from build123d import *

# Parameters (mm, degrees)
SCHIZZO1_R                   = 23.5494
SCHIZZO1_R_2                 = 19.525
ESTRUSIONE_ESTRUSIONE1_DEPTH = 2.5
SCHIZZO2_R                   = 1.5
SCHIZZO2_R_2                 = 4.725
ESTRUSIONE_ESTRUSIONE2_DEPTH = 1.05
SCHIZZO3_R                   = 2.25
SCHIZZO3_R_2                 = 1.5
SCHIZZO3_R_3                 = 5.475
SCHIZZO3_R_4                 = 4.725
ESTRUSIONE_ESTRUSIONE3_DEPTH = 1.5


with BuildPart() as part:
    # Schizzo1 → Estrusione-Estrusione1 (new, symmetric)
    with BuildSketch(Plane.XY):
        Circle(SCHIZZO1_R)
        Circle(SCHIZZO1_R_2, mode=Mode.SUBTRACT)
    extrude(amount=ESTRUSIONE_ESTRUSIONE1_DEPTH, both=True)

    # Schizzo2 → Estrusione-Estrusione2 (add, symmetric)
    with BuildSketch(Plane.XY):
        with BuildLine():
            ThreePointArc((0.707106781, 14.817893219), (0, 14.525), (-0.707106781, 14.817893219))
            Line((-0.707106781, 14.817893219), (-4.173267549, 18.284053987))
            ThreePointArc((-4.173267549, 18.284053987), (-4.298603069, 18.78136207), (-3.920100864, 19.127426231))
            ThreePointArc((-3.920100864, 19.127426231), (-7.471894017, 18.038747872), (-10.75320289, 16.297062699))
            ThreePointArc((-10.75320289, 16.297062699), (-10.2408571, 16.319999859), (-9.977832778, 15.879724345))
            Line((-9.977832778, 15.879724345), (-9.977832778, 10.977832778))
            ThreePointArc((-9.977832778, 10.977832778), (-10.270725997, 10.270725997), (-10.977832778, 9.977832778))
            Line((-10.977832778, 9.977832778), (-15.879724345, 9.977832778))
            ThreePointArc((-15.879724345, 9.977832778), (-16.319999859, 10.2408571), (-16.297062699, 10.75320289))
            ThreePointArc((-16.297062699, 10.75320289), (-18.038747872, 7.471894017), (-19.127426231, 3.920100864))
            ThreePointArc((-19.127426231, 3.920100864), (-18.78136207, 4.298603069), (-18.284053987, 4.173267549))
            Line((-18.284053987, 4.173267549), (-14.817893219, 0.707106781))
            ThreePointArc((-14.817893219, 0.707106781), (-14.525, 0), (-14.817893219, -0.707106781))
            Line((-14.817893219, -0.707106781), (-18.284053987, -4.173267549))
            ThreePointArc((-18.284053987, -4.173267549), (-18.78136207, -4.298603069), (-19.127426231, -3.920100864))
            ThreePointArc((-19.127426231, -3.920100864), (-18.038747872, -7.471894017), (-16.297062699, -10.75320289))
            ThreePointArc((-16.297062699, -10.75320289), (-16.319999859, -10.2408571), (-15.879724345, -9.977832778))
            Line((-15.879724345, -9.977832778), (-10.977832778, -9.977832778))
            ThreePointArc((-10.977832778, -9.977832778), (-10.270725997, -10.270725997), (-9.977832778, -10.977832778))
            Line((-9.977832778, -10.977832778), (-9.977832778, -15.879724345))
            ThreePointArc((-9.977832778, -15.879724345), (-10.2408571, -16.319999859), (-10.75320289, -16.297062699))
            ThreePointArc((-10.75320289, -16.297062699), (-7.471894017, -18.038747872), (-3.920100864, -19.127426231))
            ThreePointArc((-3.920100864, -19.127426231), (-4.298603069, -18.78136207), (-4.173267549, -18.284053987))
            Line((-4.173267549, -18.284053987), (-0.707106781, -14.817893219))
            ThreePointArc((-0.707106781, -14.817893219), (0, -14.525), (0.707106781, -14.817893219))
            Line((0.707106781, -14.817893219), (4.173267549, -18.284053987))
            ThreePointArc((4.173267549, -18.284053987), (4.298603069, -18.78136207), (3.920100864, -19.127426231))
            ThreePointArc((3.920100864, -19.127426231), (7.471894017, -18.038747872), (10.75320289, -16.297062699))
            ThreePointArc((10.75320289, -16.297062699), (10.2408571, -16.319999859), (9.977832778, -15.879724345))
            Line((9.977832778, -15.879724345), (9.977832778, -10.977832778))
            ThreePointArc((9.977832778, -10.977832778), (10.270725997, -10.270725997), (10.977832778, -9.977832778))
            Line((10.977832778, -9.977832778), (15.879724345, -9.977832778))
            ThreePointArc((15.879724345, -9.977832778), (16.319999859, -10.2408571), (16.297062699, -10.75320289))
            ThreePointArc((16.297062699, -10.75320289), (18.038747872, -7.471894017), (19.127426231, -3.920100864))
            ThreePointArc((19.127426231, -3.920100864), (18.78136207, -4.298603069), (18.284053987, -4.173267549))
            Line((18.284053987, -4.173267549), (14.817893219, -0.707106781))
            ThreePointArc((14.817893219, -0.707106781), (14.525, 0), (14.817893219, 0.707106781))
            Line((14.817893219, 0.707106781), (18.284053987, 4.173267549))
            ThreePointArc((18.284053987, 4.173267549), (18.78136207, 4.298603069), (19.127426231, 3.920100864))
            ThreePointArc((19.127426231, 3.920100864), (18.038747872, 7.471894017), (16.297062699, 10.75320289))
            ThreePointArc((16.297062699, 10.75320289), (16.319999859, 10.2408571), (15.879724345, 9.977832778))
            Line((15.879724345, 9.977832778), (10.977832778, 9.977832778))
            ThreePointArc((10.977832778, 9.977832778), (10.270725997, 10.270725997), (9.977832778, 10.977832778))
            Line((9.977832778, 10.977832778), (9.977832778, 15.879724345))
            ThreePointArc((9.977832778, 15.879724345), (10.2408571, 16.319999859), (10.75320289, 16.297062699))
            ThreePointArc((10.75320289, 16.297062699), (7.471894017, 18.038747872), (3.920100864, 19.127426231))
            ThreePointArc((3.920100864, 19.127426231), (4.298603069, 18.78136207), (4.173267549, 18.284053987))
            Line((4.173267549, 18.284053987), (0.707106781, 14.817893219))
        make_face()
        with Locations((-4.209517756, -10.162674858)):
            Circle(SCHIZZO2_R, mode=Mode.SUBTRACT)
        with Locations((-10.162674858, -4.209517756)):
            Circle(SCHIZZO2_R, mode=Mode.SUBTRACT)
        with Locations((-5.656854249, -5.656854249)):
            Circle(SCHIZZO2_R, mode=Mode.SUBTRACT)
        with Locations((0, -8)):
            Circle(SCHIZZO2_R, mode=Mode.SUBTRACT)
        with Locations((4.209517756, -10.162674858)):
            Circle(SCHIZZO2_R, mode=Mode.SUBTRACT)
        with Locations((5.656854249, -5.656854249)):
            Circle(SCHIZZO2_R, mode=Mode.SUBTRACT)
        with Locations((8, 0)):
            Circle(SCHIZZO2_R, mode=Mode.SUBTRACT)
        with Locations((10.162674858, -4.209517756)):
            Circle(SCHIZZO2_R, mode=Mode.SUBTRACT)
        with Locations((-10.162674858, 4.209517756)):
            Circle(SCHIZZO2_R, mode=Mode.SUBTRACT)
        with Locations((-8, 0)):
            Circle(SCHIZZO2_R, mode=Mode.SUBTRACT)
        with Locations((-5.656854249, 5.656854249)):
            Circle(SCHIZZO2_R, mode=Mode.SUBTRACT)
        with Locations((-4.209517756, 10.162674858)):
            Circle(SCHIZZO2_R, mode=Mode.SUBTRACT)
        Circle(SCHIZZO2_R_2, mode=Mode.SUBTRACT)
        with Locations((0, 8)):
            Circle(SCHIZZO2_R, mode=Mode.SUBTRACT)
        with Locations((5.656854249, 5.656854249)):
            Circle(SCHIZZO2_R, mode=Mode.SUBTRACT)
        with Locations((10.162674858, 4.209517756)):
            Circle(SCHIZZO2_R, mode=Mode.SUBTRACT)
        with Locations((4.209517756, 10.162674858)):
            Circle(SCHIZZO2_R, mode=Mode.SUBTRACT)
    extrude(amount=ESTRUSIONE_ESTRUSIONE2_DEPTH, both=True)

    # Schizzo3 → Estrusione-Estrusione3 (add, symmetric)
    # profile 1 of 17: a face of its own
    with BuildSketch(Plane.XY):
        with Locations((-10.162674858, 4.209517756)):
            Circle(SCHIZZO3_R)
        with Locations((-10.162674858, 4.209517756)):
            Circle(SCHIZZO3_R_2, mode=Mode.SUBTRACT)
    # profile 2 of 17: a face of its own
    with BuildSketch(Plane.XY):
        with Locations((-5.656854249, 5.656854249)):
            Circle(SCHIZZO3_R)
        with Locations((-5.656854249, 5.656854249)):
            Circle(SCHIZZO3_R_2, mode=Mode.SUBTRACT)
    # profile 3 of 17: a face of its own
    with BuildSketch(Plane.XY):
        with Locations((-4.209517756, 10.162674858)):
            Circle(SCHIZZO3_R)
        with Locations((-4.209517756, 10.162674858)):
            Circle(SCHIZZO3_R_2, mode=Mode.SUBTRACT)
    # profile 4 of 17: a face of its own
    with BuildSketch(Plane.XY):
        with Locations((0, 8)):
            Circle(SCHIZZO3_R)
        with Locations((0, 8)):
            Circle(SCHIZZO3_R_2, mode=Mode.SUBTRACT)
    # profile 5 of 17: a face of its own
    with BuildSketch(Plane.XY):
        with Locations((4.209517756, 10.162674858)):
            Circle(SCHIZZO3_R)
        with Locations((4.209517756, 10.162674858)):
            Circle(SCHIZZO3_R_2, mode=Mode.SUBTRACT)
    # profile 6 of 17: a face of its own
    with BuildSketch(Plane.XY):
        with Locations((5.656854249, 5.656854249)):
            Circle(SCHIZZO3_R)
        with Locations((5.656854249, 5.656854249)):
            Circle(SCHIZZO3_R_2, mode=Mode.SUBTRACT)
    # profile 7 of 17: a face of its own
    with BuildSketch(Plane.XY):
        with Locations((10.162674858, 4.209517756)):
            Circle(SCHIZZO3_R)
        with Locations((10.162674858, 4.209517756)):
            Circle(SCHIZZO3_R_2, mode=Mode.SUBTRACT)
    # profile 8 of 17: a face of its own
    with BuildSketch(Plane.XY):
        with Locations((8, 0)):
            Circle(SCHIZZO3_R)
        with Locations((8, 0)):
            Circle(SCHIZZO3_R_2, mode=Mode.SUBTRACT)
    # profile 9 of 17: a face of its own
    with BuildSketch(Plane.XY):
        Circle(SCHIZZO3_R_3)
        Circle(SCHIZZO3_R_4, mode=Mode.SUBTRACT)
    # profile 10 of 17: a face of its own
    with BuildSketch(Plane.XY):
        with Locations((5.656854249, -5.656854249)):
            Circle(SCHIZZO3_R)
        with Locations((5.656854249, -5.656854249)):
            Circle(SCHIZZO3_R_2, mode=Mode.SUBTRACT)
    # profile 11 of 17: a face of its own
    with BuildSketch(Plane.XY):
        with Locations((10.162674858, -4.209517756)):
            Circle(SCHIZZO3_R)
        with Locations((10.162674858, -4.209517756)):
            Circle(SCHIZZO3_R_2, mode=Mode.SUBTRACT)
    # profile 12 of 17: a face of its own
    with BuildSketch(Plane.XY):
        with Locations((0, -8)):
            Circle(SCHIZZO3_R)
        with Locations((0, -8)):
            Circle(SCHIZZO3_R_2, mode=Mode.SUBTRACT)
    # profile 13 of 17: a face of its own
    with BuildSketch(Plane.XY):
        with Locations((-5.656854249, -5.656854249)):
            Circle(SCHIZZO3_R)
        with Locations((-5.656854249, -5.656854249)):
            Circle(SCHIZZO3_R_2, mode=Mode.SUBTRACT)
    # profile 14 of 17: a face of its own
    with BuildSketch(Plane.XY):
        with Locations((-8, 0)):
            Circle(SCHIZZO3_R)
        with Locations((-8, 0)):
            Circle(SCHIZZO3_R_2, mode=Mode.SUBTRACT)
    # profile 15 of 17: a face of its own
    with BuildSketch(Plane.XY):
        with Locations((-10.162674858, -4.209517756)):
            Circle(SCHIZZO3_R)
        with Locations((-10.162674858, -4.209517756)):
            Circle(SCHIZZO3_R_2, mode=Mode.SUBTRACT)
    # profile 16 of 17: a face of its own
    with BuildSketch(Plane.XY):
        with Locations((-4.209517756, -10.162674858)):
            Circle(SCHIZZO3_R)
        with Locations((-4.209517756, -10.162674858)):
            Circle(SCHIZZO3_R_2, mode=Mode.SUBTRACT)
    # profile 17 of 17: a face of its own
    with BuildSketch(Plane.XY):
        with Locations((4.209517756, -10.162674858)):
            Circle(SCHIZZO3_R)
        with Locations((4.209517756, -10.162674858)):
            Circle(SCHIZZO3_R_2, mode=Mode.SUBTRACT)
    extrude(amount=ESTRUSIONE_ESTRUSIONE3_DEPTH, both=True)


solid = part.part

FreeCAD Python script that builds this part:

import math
import FreeCAD as App
import Part
import Sketcher

doc = App.newDocument("Part")
body = doc.addObject("PartDesign::Body", "Body")

# Sketch on XY plane
sketch1 = doc.addObject("Sketcher::SketchObject", "Sketch")
body.addObject(sketch1)
sketch1.AttachmentSupport = (doc.XY_Plane, [""])
sketch1.MapMode = "FlatFace"
sketch1.addGeometry(Part.Circle(App.Vector(0, 0, 0), App.Vector(0, 0, 1), 24), False)
sketch1.addGeometry(Part.Circle(App.Vector(0, 0, 0), App.Vector(0, 0, 1), 20), False)
sketch1.addConstraint(Sketcher.Constraint("Coincident", 0, 3, -1, 1))
sketch1.addConstraint(Sketcher.Constraint("Coincident", 1, 3, -1, 1))
sketch1.addConstraint(Sketcher.Constraint("Diameter", 1, 39.05))
sketch1.addConstraint(Sketcher.Constraint("Diameter", 0, 47.0988))
pad1 = doc.addObject("PartDesign::Pad", "Pad")
body.addObject(pad1)
pad1.Profile = sketch1
pad1.Length = 5
pad1.Midplane = True

# Sketch on XY plane
sketch2 = doc.addObject("Sketcher::SketchObject", "Sketch001")
body.addObject(sketch2)
sketch2.AttachmentSupport = (doc.XY_Plane, [""])
sketch2.MapMode = "FlatFace"
sketch2.addGeometry(Part.ArcOfCircle(Part.Circle(App.Vector(0, 15.5, 0), App.Vector(0, 0, 1), 1), math.radians(-135), math.radians(-45)), False)
sketch2.addGeometry(Part.LineSegment(App.Vector(-0.7, 14.8, 0), App.Vector(-4.2, 18.3, 0)), False)
sketch2.addGeometry(Part.ArcOfCircle(Part.Circle(App.Vector(-3.8, 18.6, 0), App.Vector(0, 0, 1), 0.5), math.radians(102), math.radians(225)), False)
sketch2.addGeometry(Part.ArcOfCircle(Part.Circle(App.Vector(0, 0, 0), App.Vector(0, 0, 1), 19.5), math.radians(102), math.radians(123)), False)
sketch2.addGeometry(Part.ArcOfCircle(Part.Circle(App.Vector(-10.5, 15.9, 0), App.Vector(0, 0, 1), 0.5), math.radians(0), math.radians(123)), False)
sketch2.addGeometry(Part.LineSegment(App.Vector(-10, 15.9, 0), App.Vector(-10, 11, 0)), False)
sketch2.addGeometry(Part.ArcOfCircle(Part.Circle(App.Vector(-11, 11, 0), App.Vector(0, 0, 1), 1), math.radians(-90), math.radians(0)), False)
sketch2.addGeometry(Part.LineSegment(App.Vector(-11, 10, 0), App.Vector(-15.9, 10, 0)), False)
sketch2.addGeometry(Part.ArcOfCircle(Part.Circle(App.Vector(-15.9, 10.5, 0), App.Vector(0, 0, 1), 0.5), math.radians(147), math.radians(270)), False)
sketch2.addGeometry(Part.ArcOfCircle(Part.Circle(App.Vector(0, 0, 0), App.Vector(0, 0, 1), 19.5), math.radians(147), math.radians(168)), False)
sketch2.addGeometry(Part.ArcOfCircle(Part.Circle(App.Vector(-18.6, 3.8, 0), App.Vector(0, 0, 1), 0.5), math.radians(45), math.radians(168)), False)
sketch2.addGeometry(Part.LineSegment(App.Vector(-18.3, 4.2, 0), App.Vector(-14.8, 0.7, 0)), False)
sketch2.addGeometry(Part.ArcOfCircle(Part.Circle(App.Vector(-15.5, 0, 0), App.Vector(0, 0, 1), 1), math.radians(-45), math.radians(45)), False)
sketch2.addGeometry(Part.LineSegment(App.Vector(-14.8, -0.7, 0), App.Vector(-18.3, -4.2, 0)), False)
sketch2.addGeometry(Part.ArcOfCircle(Part.Circle(App.Vector(-18.6, -3.8, 0), App.Vector(0, 0, 1), 0.5), math.radians(-168), math.radians(-45)), False)
sketch2.addGeometry(Part.ArcOfCircle(Part.Circle(App.Vector(0, 0, 0), App.Vector(0, 0, 1), 19.5), math.radians(-168), math.radians(-147)), False)
sketch2.addGeometry(Part.ArcOfCircle(Part.Circle(App.Vector(-15.9, -10.5, 0), App.Vector(0, 0, 1), 0.5), math.radians(90), math.radians(213)), False)
sketch2.addGeometry(Part.LineSegment(App.Vector(-15.9, -10, 0), App.Vector(-11, -10, 0)), False)
sketch2.addGeometry(Part.ArcOfCircle(Part.Circle(App.Vector(-11, -11, 0), App.Vector(0, 0, 1), 1), math.radians(0), math.radians(90)), False)
sketch2.addGeometry(Part.LineSegment(App.Vector(-10, -11, 0), App.Vector(-10, -15.9, 0)), False)
sketch2.addGeometry(Part.ArcOfCircle(Part.Circle(App.Vector(-10.5, -15.9, 0), App.Vector(0, 0, 1), 0.5), math.radians(-123), math.radians(0)), False)
sketch2.addGeometry(Part.ArcOfCircle(Part.Circle(App.Vector(0, 0, 0), App.Vector(0, 0, 1), 19.5), math.radians(-123), math.radians(-102)), False)
sketch2.addGeometry(Part.ArcOfCircle(Part.Circle(App.Vector(-3.8, -18.6, 0), App.Vector(0, 0, 1), 0.5), math.radians(135), math.radians(258)), False)
sketch2.addGeometry(Part.LineSegment(App.Vector(-4.2, -18.3, 0), App.Vector(-0.7, -14.8, 0)), False)
sketch2.addGeometry(Part.ArcOfCircle(Part.Circle(App.Vector(0, -15.5, 0), App.Vector(0, 0, 1), 1), math.radians(45), math.radians(135)), False)
sketch2.addGeometry(Part.LineSegment(App.Vector(0.7, -14.8, 0), App.Vector(4.2, -18.3, 0)), False)
sketch2.addGeometry(Part.ArcOfCircle(Part.Circle(App.Vector(3.8, -18.6, 0), App.Vector(0, 0, 1), 0.5), math.radians(-78), math.radians(45)), False)
sketch2.addGeometry(Part.ArcOfCircle(Part.Circle(App.Vector(0, 0, 0), App.Vector(0, 0, 1), 19.5), math.radians(-78), math.radians(-57)), False)
sketch2.addGeometry(Part.ArcOfCircle(Part.Circle(App.Vector(10.5, -15.9, 0), App.Vector(0, 0, 1), 0.5), math.radians(180), math.radians(303)), False)
sketch2.addGeometry(Part.LineSegment(App.Vector(10, -15.9, 0), App.Vector(10, -11, 0)), False)
sketch2.addGeometry(Part.ArcOfCircle(Part.Circle(App.Vector(11, -11, 0), App.Vector(0, 0, 1), 1), math.radians(90), math.radians(180)), False)
sketch2.addGeometry(Part.LineSegment(App.Vector(11, -10, 0), App.Vector(15.9, -10, 0)), False)
sketch2.addGeometry(Part.ArcOfCircle(Part.Circle(App.Vector(15.9, -10.5, 0), App.Vector(0, 0, 1), 0.5), math.radians(-33), math.radians(90)), False)
sketch2.addGeometry(Part.ArcOfCircle(Part.Circle(App.Vector(0, 0, 0), App.Vector(0, 0, 1), 19.5), math.radians(-33), math.radians(-12)), False)
sketch2.addGeometry(Part.ArcOfCircle(Part.Circle(App.Vector(18.6, -3.8, 0), App.Vector(0, 0, 1), 0.5), math.radians(-135), math.radians(-12)), False)
sketch2.addGeometry(Part.LineSegment(App.Vector(18.3, -4.2, 0), App.Vector(14.8, -0.7, 0)), False)
sketch2.addGeometry(Part.ArcOfCircle(Part.Circle(App.Vector(15.5, 0, 0), App.Vector(0, 0, 1), 1), math.radians(135), math.radians(225)), False)
sketch2.addGeometry(Part.LineSegment(App.Vector(14.8, 0.7, 0), App.Vector(18.3, 4.2, 0)), False)
sketch2.addGeometry(Part.ArcOfCircle(Part.Circle(App.Vector(18.6, 3.8, 0), App.Vector(0, 0, 1), 0.5), math.radians(12), math.radians(135)), False)
sketch2.addGeometry(Part.ArcOfCircle(Part.Circle(App.Vector(0, 0, 0), App.Vector(0, 0, 1), 19.5), math.radians(12), math.radians(33)), False)
sketch2.addGeometry(Part.ArcOfCircle(Part.Circle(App.Vector(15.9, 10.5, 0), App.Vector(0, 0, 1), 0.5), math.radians(-90), math.radians(33)), False)
sketch2.addGeometry(Part.LineSegment(App.Vector(15.9, 10, 0), App.Vector(11, 10, 0)), False)
sketch2.addGeometry(Part.ArcOfCircle(Part.Circle(App.Vector(11, 11, 0), App.Vector(0, 0, 1), 1), math.radians(-180), math.radians(-90)), False)
sketch2.addGeometry(Part.LineSegment(App.Vector(10, 11, 0), App.Vector(10, 15.9, 0)), False)
sketch2.addGeometry(Part.ArcOfCircle(Part.Circle(App.Vector(10.5, 15.9, 0), App.Vector(0, 0, 1), 0.5), math.radians(57), math.radians(180)), False)
sketch2.addGeometry(Part.ArcOfCircle(Part.Circle(App.Vector(0, 0, 0), App.Vector(0, 0, 1), 19.5), math.radians(57), math.radians(78)), False)
sketch2.addGeometry(Part.ArcOfCircle(Part.Circle(App.Vector(3.8, 18.6, 0), App.Vector(0, 0, 1), 0.5), math.radians(-45), math.radians(78)), False)
sketch2.addGeometry(Part.LineSegment(App.Vector(4.2, 18.3, 0), App.Vector(0.7, 14.8, 0)), False)
sketch2.addGeometry(Part.Circle(App.Vector(-4.2, -10.2, 0), App.Vector(0, 0, 1), 1.5), False)
sketch2.addGeometry(Part.Circle(App.Vector(-10.2, -4.2, 0), App.Vector(0, 0, 1), 1.5), False)
sketch2.addGeometry(Part.Circle(App.Vector(-5.7, -5.7, 0), App.Vector(0, 0, 1), 1.5), False)
sketch2.addGeometry(Part.Circle(App.Vector(4.2, -10.2, 0), App.Vector(0, 0, 1), 1.5), False)
sketch2.addGeometry(Part.Circle(App.Vector(0, -8, 0), App.Vector(0, 0, 1), 1.5), False)
sketch2.addGeometry(Part.Circle(App.Vector(5.7, -5.7, 0), App.Vector(0, 0, 1), 1.5), False)
sketch2.addGeometry(Part.Circle(App.Vector(10.2, -4.2, 0), App.Vector(0, 0, 1), 1.5), False)
sketch2.addGeometry(Part.Circle(App.Vector(-8, 0, 0), App.Vector(0, 0, 1), 1.5), False)
sketch2.addGeometry(Part.Circle(App.Vector(-10.2, 4.2, 0), App.Vector(0, 0, 1), 1.5), False)
sketch2.addGeometry(Part.Circle(App.Vector(-5.7, 5.7, 0), App.Vector(0, 0, 1), 1.5), False)
sketch2.addGeometry(Part.Circle(App.Vector(-4.2, 10.2, 0), App.Vector(0, 0, 1), 1.5), False)
sketch2.addGeometry(Part.Circle(App.Vector(0, 0, 0), App.Vector(0, 0, 1), 4.7), False)
sketch2.addGeometry(Part.Circle(App.Vector(5.7, 5.7, 0), App.Vector(0, 0, 1), 1.5), False)
sketch2.addGeometry(Part.Circle(App.Vector(8, 0, 0), App.Vector(0, 0, 1), 1.5), False)
sketch2.addGeometry(Part.Circle(App.Vector(10.2, 4.2, 0), App.Vector(0, 0, 1), 1.5), False)
sketch2.addGeometry(Part.Circle(App.Vector(0, 8, 0), App.Vector(0, 0, 1), 1.5), False)
sketch2.addGeometry(Part.Circle(App.Vector(4.2, 10.2, 0), App.Vector(0, 0, 1), 1.5), False)
sketch2.addConstraint(Sketcher.Constraint("Tangent", 0, 1, 1, 1))
sketch2.addConstraint(Sketcher.Constraint("Tangent", 1, 2, 2, 2))
sketch2.addConstraint(Sketcher.Constraint("Tangent", 2, 1, 3, 1))
sketch2.addConstraint(Sketcher.Constraint("Tangent", 3, 2, 4, 2))
sketch2.addConstraint(Sketcher.Constraint("Tangent", 4, 1, 5, 1))
sketch2.addConstraint(Sketcher.Constraint("Tangent", 5, 2, 6, 2))
sketch2.addConstraint(Sketcher.Constraint("Tangent", 6, 1, 7, 1))
sketch2.addConstraint(Sketcher.Constraint("Tangent", 7, 2, 8, 2))
sketch2.addConstraint(Sketcher.Constraint("Tangent", 8, 1, 9, 1))
sketch2.addConstraint(Sketcher.Constraint("Tangent", 9, 2, 10, 2))
sketch2.addConstraint(Sketcher.Constraint("Tangent", 10, 1, 11, 1))
sketch2.addConstraint(Sketcher.Constraint("Tangent", 11, 2, 12, 2))
sketch2.addConstraint(Sketcher.Constraint("Tangent", 12, 1, 13, 1))
sketch2.addConstraint(Sketcher.Constraint("Tangent", 13, 2, 14, 2))
sketch2.addConstraint(Sketcher.Constraint("Tangent", 14, 1, 15, 1))
sketch2.addConstraint(Sketcher.Constraint("Tangent", 15, 2, 16, 2))
sketch2.addConstraint(Sketcher.Constraint("Tangent", 16, 1, 17, 1))
sketch2.addConstraint(Sketcher.Constraint("Tangent", 17, 2, 18, 2))
sketch2.addConstraint(Sketcher.Constraint("Tangent", 18, 1, 19, 1))
sketch2.addConstraint(Sketcher.Constraint("Tangent", 19, 2, 20, 2))
sketch2.addConstraint(Sketcher.Constraint("Tangent", 20, 1, 21, 1))
sketch2.addConstraint(Sketcher.Constraint("Tangent", 21, 2, 22, 2))
sketch2.addConstraint(Sketcher.Constraint("Tangent", 22, 1, 23, 1))
sketch2.addConstraint(Sketcher.Constraint("Tangent", 23, 2, 24, 2))
sketch2.addConstraint(Sketcher.Constraint("Tangent", 24, 1, 25, 1))
sketch2.addConstraint(Sketcher.Constraint("Tangent", 25, 2, 26, 2))
sketch2.addConstraint(Sketcher.Constraint("Tangent", 26, 1, 27, 1))
sketch2.addConstraint(Sketcher.Constraint("Tangent", 27, 2, 28, 2))
sketch2.addConstraint(Sketcher.Constraint("Tangent", 28, 1, 29, 1))
sketch2.addConstraint(Sketcher.Constraint("Tangent", 29, 2, 30, 2))
sketch2.addConstraint(Sketcher.Constraint("Tangent", 30, 1, 31, 1))
sketch2.addConstraint(Sketcher.Constraint("Tangent", 31, 2, 32, 2))
sketch2.addConstraint(Sketcher.Constraint("Tangent", 32, 1, 33, 1))
sketch2.addConstraint(Sketcher.Constraint("Tangent", 33, 2, 34, 2))
sketch2.addConstraint(Sketcher.Constraint("Tangent", 34, 1, 35, 1))
sketch2.addConstraint(Sketcher.Constraint("Tangent", 35, 2, 36, 2))
sketch2.addConstraint(Sketcher.Constraint("Tangent", 36, 1, 37, 1))
sketch2.addConstraint(Sketcher.Constraint("Tangent", 37, 2, 38, 2))
sketch2.addConstraint(Sketcher.Constraint("Tangent", 38, 1, 39, 1))
sketch2.addConstraint(Sketcher.Constraint("Tangent", 39, 2, 40, 2))
sketch2.addConstraint(Sketcher.Constraint("Tangent", 40, 1, 41, 1))
sketch2.addConstraint(Sketcher.Constraint("Tangent", 41, 2, 42, 2))
sketch2.addConstraint(Sketcher.Constraint("Tangent", 42, 1, 43, 1))
sketch2.addConstraint(Sketcher.Constraint("Tangent", 43, 2, 44, 2))
sketch2.addConstraint(Sketcher.Constraint("Tangent", 44, 1, 45, 1))
sketch2.addConstraint(Sketcher.Constraint("Tangent", 45, 2, 46, 2))
sketch2.addConstraint(Sketcher.Constraint("Tangent", 46, 1, 47, 1))
sketch2.addConstraint(Sketcher.Constraint("Tangent", 47, 2, 0, 2))
sketch2.addConstraint(Sketcher.Constraint("Vertical", 5))
sketch2.addConstraint(Sketcher.Constraint("Horizontal", 7))
sketch2.addConstraint(Sketcher.Constraint("Horizontal", 17))
sketch2.addConstraint(Sketcher.Constraint("Vertical", 19))
sketch2.addConstraint(Sketcher.Constraint("Vertical", 29))
sketch2.addConstraint(Sketcher.Constraint("Horizontal", 31))
sketch2.addConstraint(Sketcher.Constraint("Horizontal", 41))
sketch2.addConstraint(Sketcher.Constraint("Vertical", 43))
sketch2.addConstraint(Sketcher.Constraint("Coincident", 3, 3, -1, 1))
sketch2.addConstraint(Sketcher.Constraint("Coincident", 9, 3, -1, 1))
sketch2.addConstraint(Sketcher.Constraint("Coincident", 15, 3, -1, 1))
sketch2.addConstraint(Sketcher.Constraint("Coincident", 21, 3, -1, 1))
sketch2.addConstraint(Sketcher.Constraint("Coincident", 27, 3, -1, 1))
sketch2.addConstraint(Sketcher.Constraint("Coincident", 33, 3, -1, 1))
sketch2.addConstraint(Sketcher.Constraint("Coincident", 39, 3, -1, 1))
sketch2.addConstraint(Sketcher.Constraint("Coincident", 45, 3, -1, 1))
sketch2.addConstraint(Sketcher.Constraint("Coincident", 59, 3, -1, 1))
sketch2.addConstraint(Sketcher.Constraint("Equal", 2, 4))
sketch2.addConstraint(Sketcher.Constraint("Equal", 0, 6))
sketch2.addConstraint(Sketcher.Constraint("Equal", 4, 8))
sketch2.addConstraint(Sketcher.Constraint("Equal", 3, 9))
sketch2.addConstraint(Sketcher.Constraint("Equal", 8, 10))
sketch2.addConstraint(Sketcher.Constraint("Equal", 6, 12))
sketch2.addConstraint(Sketcher.Constraint("Equal", 10, 14))
sketch2.addConstraint(Sketcher.Constraint("Equal", 9, 15))
sketch2.addConstraint(Sketcher.Constraint("Equal", 14, 16))
sketch2.addConstraint(Sketcher.Constraint("Equal", 12, 18))
sketch2.addConstraint(Sketcher.Constraint("Equal", 16, 20))
sketch2.addConstraint(Sketcher.Constraint("Equal", 15, 21))
sketch2.addConstraint(Sketcher.Constraint("Equal", 20, 22))
sketch2.addConstraint(Sketcher.Constraint("Equal", 18, 24))
sketch2.addConstraint(Sketcher.Constraint("Equal", 22, 26))
sketch2.addConstraint(Sketcher.Constraint("Equal", 21, 27))
sketch2.addConstraint(Sketcher.Constraint("Equal", 26, 28))
sketch2.addConstraint(Sketcher.Constraint("Equal", 24, 30))
sketch2.addConstraint(Sketcher.Constraint("Equal", 28, 32))
sketch2.addConstraint(Sketcher.Constraint("Equal", 27, 33))
sketch2.addConstraint(Sketcher.Constraint("Equal", 32, 34))
sketch2.addConstraint(Sketcher.Constraint("Equal", 30, 36))
sketch2.addConstraint(Sketcher.Constraint("Equal", 34, 38))
sketch2.addConstraint(Sketcher.Constraint("Equal", 33, 39))
sketch2.addConstraint(Sketcher.Constraint("Equal", 38, 40))
sketch2.addConstraint(Sketcher.Constraint("Equal", 36, 42))
sketch2.addConstraint(Sketcher.Constraint("Equal", 40, 44))
sketch2.addConstraint(Sketcher.Constraint("Equal", 39, 45))
sketch2.addConstraint(Sketcher.Constraint("Equal", 44, 46))
sketch2.addConstraint(Sketcher.Constraint("Equal", 48, 49))
sketch2.addConstraint(Sketcher.Constraint("Equal", 49, 50))
sketch2.addConstraint(Sketcher.Constraint("Equal", 50, 51))
sketch2.addConstraint(Sketcher.Constraint("Equal", 51, 52))
sketch2.addConstraint(Sketcher.Constraint("Equal", 52, 53))
sketch2.addConstraint(Sketcher.Constraint("Equal", 53, 54))
sketch2.addConstraint(Sketcher.Constraint("Equal", 54, 55))
sketch2.addConstraint(Sketcher.Constraint("Equal", 55, 56))
sketch2.addConstraint(Sketcher.Constraint("Equal", 56, 57))
sketch2.addConstraint(Sketcher.Constraint("Equal", 57, 58))
sketch2.addConstraint(Sketcher.Constraint("Equal", 58, 60))
sketch2.addConstraint(Sketcher.Constraint("Equal", 60, 61))
sketch2.addConstraint(Sketcher.Constraint("Equal", 61, 62))
sketch2.addConstraint(Sketcher.Constraint("Equal", 62, 63))
sketch2.addConstraint(Sketcher.Constraint("Equal", 63, 64))
sketch2.addConstraint(Sketcher.Constraint("Symmetric", 0, 3, 24, 3, -1, 1))
sketch2.addConstraint(Sketcher.Constraint("Symmetric", 6, 3, 30, 3, -1, 1))
sketch2.addConstraint(Sketcher.Constraint("Symmetric", 12, 3, 36, 3, -1, 1))
sketch2.addConstraint(Sketcher.Constraint("Symmetric", 18, 3, 42, 3, -1, 1))
sketch2.addConstraint(Sketcher.Constraint("Symmetric", 54, 3, 56, 3, -1, 1))
sketch2.addConstraint(Sketcher.Constraint("Symmetric", 53, 3, 57, 3, -1, 1))
sketch2.addConstraint(Sketcher.Constraint("Symmetric", 51, 3, 58, 3, -1, 1))
sketch2.addConstraint(Sketcher.Constraint("Symmetric", 50, 3, 60, 3, -1, 1))
sketch2.addConstraint(Sketcher.Constraint("Symmetric", 55, 3, 61, 3, -1, 1))
sketch2.addConstraint(Sketcher.Constraint("Symmetric", 49, 3, 62, 3, -1, 1))
sketch2.addConstraint(Sketcher.Constraint("Symmetric", 52, 3, 63, 3, -1, 1))
sketch2.addConstraint(Sketcher.Constraint("Symmetric", 48, 3, 64, 3, -1, 1))
sketch2.addConstraint(Sketcher.Constraint("Symmetric", 18, 3, 30, 3, -2))
sketch2.addConstraint(Sketcher.Constraint("Symmetric", 48, 3, 51, 3, -2))
sketch2.addConstraint(Sketcher.Constraint("Symmetric", 50, 3, 53, 3, -2))
sketch2.addConstraint(Sketcher.Constraint("Symmetric", 49, 3, 54, 3, -2))
sketch2.addConstraint(Sketcher.Constraint("Symmetric", 23, 2, 24, 1, -2))
sketch2.addConstraint(Sketcher.Constraint("Symmetric", 13, 2, 34, 1, -2))
sketch2.addConstraint(Sketcher.Constraint("PointOnObject", 52, 3, -2))
sketch2.addConstraint(Sketcher.Constraint("PointOnObject", 55, 3, -1))
sketch2.addConstraint(Sketcher.Constraint("Parallel", 1, 11))
sketch2.addConstraint(Sketcher.Constraint("Perpendicular", 11, 13))
sketch2.addConstraint(Sketcher.Constraint("Parallel", 13, 23))
sketch2.addConstraint(Sketcher.Constraint("Perpendicular", 23, 25))
sketch2.addConstraint(Sketcher.Constraint("Perpendicular", 35, 37))
sketch2.addConstraint(Sketcher.Constraint("Parallel", 37, 47))
sketch2.addConstraint(Sketcher.Constraint("Equal", 41, 5))
sketch2.addConstraint(Sketcher.Constraint("Equal", 1, 11))
sketch2.addConstraint(Sketcher.Constraint("Diameter", 48, 3.0))
sketch2.addConstraint(Sketcher.Constraint("Radius", 0, 1.0))
sketch2.addConstraint(Sketcher.Constraint("Radius", 2, 0.5))
sketch2.addConstraint(Sketcher.Constraint("Diameter", 59, 9.45))
sketch2.addConstraint(Sketcher.Constraint("DistanceY", 52, 3, -1, 1, 8.0))
sketch2.addConstraint(Sketcher.Constraint("DistanceX", 55, 3, -1, 1, 8.0))
sketch2.addConstraint(Sketcher.Constraint("Radius", 3, 19.525))
sketch2.addConstraint(Sketcher.Constraint("DistanceY", -1, 1, 0, 3, 15.525))
sketch2.addConstraint(Sketcher.Constraint("DistanceX", 7, 2, 7, 1, 4.901892))
sketch2.addConstraint(Sketcher.Constraint("DistanceX", 48, 3, -1, 1, 4.209518))
sketch2.addConstraint(Sketcher.Constraint("DistanceY", 48, 3, -1, 1, 10.162675))
sketch2.addConstraint(Sketcher.Constraint("DistanceX", 49, 3, -1, 1, 10.162675))
sketch2.addConstraint(Sketcher.Constraint("DistanceY", 49, 3, -1, 1, 4.209518))
sketch2.addConstraint(Sketcher.Constraint("DistanceX", 50, 3, -1, 1, 5.656854))
sketch2.addConstraint(Sketcher.Constraint("DistanceY", 50, 3, -1, 1, 5.656854))
pad2 = doc.addObject("PartDesign::Pad", "Pad001")
body.addObject(pad2)
pad2.Profile = sketch2
pad2.Length = 2.1
pad2.Midplane = True

# Sketch on XY plane
sketch3 = doc.addObject("Sketcher::SketchObject", "Sketch002")
body.addObject(sketch3)
sketch3.AttachmentSupport = (doc.XY_Plane, [""])
sketch3.MapMode = "FlatFace"
sketch3.addGeometry(Part.Circle(App.Vector(-10.2, 4.2, 0), App.Vector(0, 0, 1), 2.2), False)
sketch3.addGeometry(Part.Circle(App.Vector(-10.2, 4.2, 0), App.Vector(0, 0, 1), 1.5), False)
sketch3.addGeometry(Part.Circle(App.Vector(-5.7, 5.7, 0), App.Vector(0, 0, 1), 2.2), False)
sketch3.addGeometry(Part.Circle(App.Vector(-5.7, 5.7, 0), App.Vector(0, 0, 1), 1.5), False)
sketch3.addGeometry(Part.Circle(App.Vector(-4.2, 10.2, 0), App.Vector(0, 0, 1), 2.2), False)
sketch3.addGeometry(Part.Circle(App.Vector(-4.2, 10.2, 0), App.Vector(0, 0, 1), 1.5), False)
sketch3.addGeometry(Part.Circle(App.Vector(0, 8, 0), App.Vector(0, 0, 1), 2.2), False)
sketch3.addGeometry(Part.Circle(App.Vector(0, 8, 0), App.Vector(0, 0, 1), 1.5), False)
sketch3.addGeometry(Part.Circle(App.Vector(4.2, 10.2, 0), App.Vector(0, 0, 1), 2.2), False)
sketch3.addGeometry(Part.Circle(App.Vector(4.2, 10.2, 0), App.Vector(0, 0, 1), 1.5), False)
sketch3.addGeometry(Part.Circle(App.Vector(5.7, 5.7, 0), App.Vector(0, 0, 1), 2.2), False)
sketch3.addGeometry(Part.Circle(App.Vector(5.7, 5.7, 0), App.Vector(0, 0, 1), 1.5), False)
sketch3.addGeometry(Part.Circle(App.Vector(10.2, 4.2, 0), App.Vector(0, 0, 1), 2.2), False)
sketch3.addGeometry(Part.Circle(App.Vector(10.2, 4.2, 0), App.Vector(0, 0, 1), 1.5), False)
sketch3.addGeometry(Part.Circle(App.Vector(8, 0, 0), App.Vector(0, 0, 1), 2.2), False)
sketch3.addGeometry(Part.Circle(App.Vector(8, 0, 0), App.Vector(0, 0, 1), 1.5), False)
sketch3.addGeometry(Part.Circle(App.Vector(0, 0, 0), App.Vector(0, 0, 1), 5.5), False)
sketch3.addGeometry(Part.Circle(App.Vector(0, 0, 0), App.Vector(0, 0, 1), 4.7), False)
sketch3.addGeometry(Part.Circle(App.Vector(5.7, -5.7, 0), App.Vector(0, 0, 1), 2.2), False)
sketch3.addGeometry(Part.Circle(App.Vector(5.7, -5.7, 0), App.Vector(0, 0, 1), 1.5), False)
sketch3.addGeometry(Part.Circle(App.Vector(10.2, -4.2, 0), App.Vector(0, 0, 1), 2.2), False)
sketch3.addGeometry(Part.Circle(App.Vector(10.2, -4.2, 0), App.Vector(0, 0, 1), 1.5), False)
sketch3.addGeometry(Part.Circle(App.Vector(0, -8, 0), App.Vector(0, 0, 1), 2.2), False)
sketch3.addGeometry(Part.Circle(App.Vector(0, -8, 0), App.Vector(0, 0, 1), 1.5), False)
sketch3.addGeometry(Part.Circle(App.Vector(-5.7, -5.7, 0), App.Vector(0, 0, 1), 2.2), False)
sketch3.addGeometry(Part.Circle(App.Vector(-5.7, -5.7, 0), App.Vector(0, 0, 1), 1.5), False)
sketch3.addGeometry(Part.Circle(App.Vector(-8, 0, 0), App.Vector(0, 0, 1), 2.2), False)
sketch3.addGeometry(Part.Circle(App.Vector(-8, 0, 0), App.Vector(0, 0, 1), 1.5), False)
sketch3.addGeometry(Part.Circle(App.Vector(-10.2, -4.2, 0), App.Vector(0, 0, 1), 2.2), False)
sketch3.addGeometry(Part.Circle(App.Vector(-10.2, -4.2, 0), App.Vector(0, 0, 1), 1.5), False)
sketch3.addGeometry(Part.Circle(App.Vector(-4.2, -10.2, 0), App.Vector(0, 0, 1), 2.2), False)
sketch3.addGeometry(Part.Circle(App.Vector(-4.2, -10.2, 0), App.Vector(0, 0, 1), 1.5), False)
sketch3.addGeometry(Part.Circle(App.Vector(4.2, -10.2, 0), App.Vector(0, 0, 1), 2.2), False)
sketch3.addGeometry(Part.Circle(App.Vector(4.2, -10.2, 0), App.Vector(0, 0, 1), 1.5), False)
sketch3.addConstraint(Sketcher.Constraint("Coincident", 16, 3, -1, 1))
sketch3.addConstraint(Sketcher.Constraint("Coincident", 17, 3, -1, 1))
sketch3.addConstraint(Sketcher.Constraint("Coincident", 1, 3, 0, 3))
sketch3.addConstraint(Sketcher.Constraint("Coincident", 3, 3, 2, 3))
sketch3.addConstraint(Sketcher.Constraint("Coincident", 5, 3, 4, 3))
sketch3.addConstraint(Sketcher.Constraint("Coincident", 7, 3, 6, 3))
sketch3.addConstraint(Sketcher.Constraint("Coincident", 9, 3, 8, 3))
sketch3.addConstraint(Sketcher.Constraint("Coincident", 11, 3, 10, 3))
sketch3.addConstraint(Sketcher.Constraint("Coincident", 13, 3, 12, 3))
sketch3.addConstraint(Sketcher.Constraint("Coincident", 15, 3, 14, 3))
sketch3.addConstraint(Sketcher.Constraint("Coincident", 19, 3, 18, 3))
sketch3.addConstraint(Sketcher.Constraint("Coincident", 21, 3, 20, 3))
sketch3.addConstraint(Sketcher.Constraint("Coincident", 23, 3, 22, 3))
sketch3.addConstraint(Sketcher.Constraint("Coincident", 25, 3, 24, 3))
sketch3.addConstraint(Sketcher.Constraint("Coincident", 27, 3, 26, 3))
sketch3.addConstraint(Sketcher.Constraint("Coincident", 29, 3, 28, 3))
sketch3.addConstraint(Sketcher.Constraint("Coincident", 31, 3, 30, 3))
sketch3.addConstraint(Sketcher.Constraint("Coincident", 33, 3, 32, 3))
sketch3.addConstraint(Sketcher.Constraint("Equal", 0, 2))
sketch3.addConstraint(Sketcher.Constraint("Equal", 1, 3))
sketch3.addConstraint(Sketcher.Constraint("Equal", 2, 4))
sketch3.addConstraint(Sketcher.Constraint("Equal", 3, 5))
sketch3.addConstraint(Sketcher.Constraint("Equal", 4, 6))
sketch3.addConstraint(Sketcher.Constraint("Equal", 5, 7))
sketch3.addConstraint(Sketcher.Constraint("Equal", 6, 8))
sketch3.addConstraint(Sketcher.Constraint("Equal", 7, 9))
sketch3.addConstraint(Sketcher.Constraint("Equal", 8, 10))
sketch3.addConstraint(Sketcher.Constraint("Equal", 9, 11))
sketch3.addConstraint(Sketcher.Constraint("Equal", 10, 12))
sketch3.addConstraint(Sketcher.Constraint("Equal", 11, 13))
sketch3.addConstraint(Sketcher.Constraint("Equal", 12, 14))
sketch3.addConstraint(Sketcher.Constraint("Equal", 13, 15))
sketch3.addConstraint(Sketcher.Constraint("Equal", 14, 18))
sketch3.addConstraint(Sketcher.Constraint("Equal", 15, 19))
sketch3.addConstraint(Sketcher.Constraint("Equal", 18, 20))
sketch3.addConstraint(Sketcher.Constraint("Equal", 19, 21))
sketch3.addConstraint(Sketcher.Constraint("Equal", 20, 22))
sketch3.addConstraint(Sketcher.Constraint("Equal", 21, 23))
sketch3.addConstraint(Sketcher.Constraint("Equal", 22, 24))
sketch3.addConstraint(Sketcher.Constraint("Equal", 23, 25))
sketch3.addConstraint(Sketcher.Constraint("Equal", 24, 26))
sketch3.addConstraint(Sketcher.Constraint("Equal", 25, 27))
sketch3.addConstraint(Sketcher.Constraint("Equal", 26, 28))
sketch3.addConstraint(Sketcher.Constraint("Equal", 27, 29))
sketch3.addConstraint(Sketcher.Constraint("Equal", 28, 30))
sketch3.addConstraint(Sketcher.Constraint("Equal", 29, 31))
sketch3.addConstraint(Sketcher.Constraint("Equal", 30, 32))
sketch3.addConstraint(Sketcher.Constraint("Equal", 31, 33))
sketch3.addConstraint(Sketcher.Constraint("Symmetric", 2, 3, 18, 3, -1, 1))
sketch3.addConstraint(Sketcher.Constraint("Symmetric", 0, 3, 20, 3, -1, 1))
sketch3.addConstraint(Sketcher.Constraint("Symmetric", 6, 3, 22, 3, -1, 1))
sketch3.addConstraint(Sketcher.Constraint("Symmetric", 10, 3, 24, 3, -1, 1))
sketch3.addConstraint(Sketcher.Constraint("Symmetric", 14, 3, 26, 3, -1, 1))
sketch3.addConstraint(Sketcher.Constraint("Symmetric", 12, 3, 28, 3, -1, 1))
sketch3.addConstraint(Sketcher.Constraint("Symmetric", 8, 3, 30, 3, -1, 1))
sketch3.addConstraint(Sketcher.Constraint("Symmetric", 4, 3, 32, 3, -1, 1))
sketch3.addConstraint(Sketcher.Constraint("Symmetric", 4, 3, 8, 3, -2))
sketch3.addConstraint(Sketcher.Constraint("Symmetric", 2, 3, 10, 3, -2))
sketch3.addConstraint(Sketcher.Constraint("Symmetric", 0, 3, 12, 3, -2))
sketch3.addConstraint(Sketcher.Constraint("PointOnObject", 6, 3, -2))
sketch3.addConstraint(Sketcher.Constraint("PointOnObject", 14, 3, -1))
sketch3.addConstraint(Sketcher.Constraint("Diameter", 1, 3.0))
sketch3.addConstraint(Sketcher.Constraint("Diameter", 0, 4.5))
sketch3.addConstraint(Sketcher.Constraint("Diameter", 16, 10.95))
sketch3.addConstraint(Sketcher.Constraint("Diameter", 17, 9.45))
sketch3.addConstraint(Sketcher.Constraint("DistanceY", -1, 1, 6, 3, 8.0))
sketch3.addConstraint(Sketcher.Constraint("DistanceX", -1, 1, 14, 3, 8.0))
sketch3.addConstraint(Sketcher.Constraint("DistanceX", 0, 3, 2, 3, 4.505821))
sketch3.addConstraint(Sketcher.Constraint("DistanceY", 2, 3, 4, 3, 4.505821))
sketch3.addConstraint(Sketcher.Constraint("DistanceX", 0, 3, -1, 1, 10.162675))
sketch3.addConstraint(Sketcher.Constraint("DistanceY", -1, 1, 0, 3, 4.209518))
sketch3.addConstraint(Sketcher.Constraint("DistanceY", -1, 1, 2, 3, 5.656854))
sketch3.addConstraint(Sketcher.Constraint("DistanceX", 4, 3, -1, 1, 4.209518))
pad3 = doc.addObject("PartDesign::Pad", "Pad002")
body.addObject(pad3)
pad3.Profile = sketch3
pad3.Length = 3
pad3.Midplane = True

doc.recompute()
